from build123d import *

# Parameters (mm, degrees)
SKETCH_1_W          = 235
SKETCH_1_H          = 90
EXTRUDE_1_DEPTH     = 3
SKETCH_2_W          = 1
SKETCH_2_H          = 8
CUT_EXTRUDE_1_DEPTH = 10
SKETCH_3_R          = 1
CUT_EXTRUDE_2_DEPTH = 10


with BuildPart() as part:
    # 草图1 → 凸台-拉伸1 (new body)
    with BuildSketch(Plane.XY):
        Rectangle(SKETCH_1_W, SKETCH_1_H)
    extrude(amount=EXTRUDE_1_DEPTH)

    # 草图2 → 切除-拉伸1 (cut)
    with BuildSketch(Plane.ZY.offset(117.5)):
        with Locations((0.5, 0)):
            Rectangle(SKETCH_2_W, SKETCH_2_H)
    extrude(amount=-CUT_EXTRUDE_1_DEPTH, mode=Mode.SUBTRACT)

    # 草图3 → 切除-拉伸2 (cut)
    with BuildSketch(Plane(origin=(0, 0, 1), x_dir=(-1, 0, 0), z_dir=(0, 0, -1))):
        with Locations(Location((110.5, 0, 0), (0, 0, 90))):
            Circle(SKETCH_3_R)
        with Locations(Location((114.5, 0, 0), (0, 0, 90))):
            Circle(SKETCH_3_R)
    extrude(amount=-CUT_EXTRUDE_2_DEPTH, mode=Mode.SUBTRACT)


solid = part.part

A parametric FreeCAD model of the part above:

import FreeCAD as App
import Part
import Sketcher

V = App.Vector
Q = App.Units.Quantity


def add_polygon(sketch, points):
    """Adds a closed chain of lines whose ends are joined by coincident constraints."""
    first, n = sketch.GeometryCount, len(points)
    for a, b in zip(points, points[1:] + points[:1]):
        sketch.addGeometry(Part.LineSegment(App.Vector(*a, 0), App.Vector(*b, 0)), False)
    for i in range(n):
        sketch.addConstraint(Sketcher.Constraint("Coincident", first + i, 2, first + (i + 1) % n, 1))

doc = App.newDocument("Part")
body = doc.addObject("PartDesign::Body", "Body")

sketch1 = body.newObject("Sketcher::SketchObject", "Sketch")
sketch1.AttachmentSupport = (doc.getObject("XY_Plane"), [""])
sketch1.MapMode = "FlatFace"
add_polygon(sketch1, [(-118, 45), (-118, -45), (118, -45), (118, 45)])
sketch1.addConstraint([
    Sketcher.Constraint("Vertical", 0),
    Sketcher.Constraint("Horizontal", 1),
    Sketcher.Constraint("Vertical", 2),
    Sketcher.Constraint("Horizontal", 3),
    Sketcher.Constraint("Symmetric", 0, 2, 2, 2, -1, 1),
    Sketcher.Constraint("DistanceX", 1, 1, 1, 2, Q("235 mm")),
    Sketcher.Constraint("DistanceY", 0, 2, 0, 1, Q("90 mm")),
])
pad1 = body.newObject("PartDesign::Pad", "Pad")
pad1.Profile = sketch1
pad1.Length = 3

sketch2 = body.newObject("Sketcher::SketchObject", "Sketch001")
sketch2.AttachmentSupport = (doc.getObject("YZ_Plane"), [""])
sketch2.MapMode = "FlatFace"
sketch2.AttachmentOffset = App.Placement(V(0, 0, -117.5), App.Rotation())
add_polygon(sketch2, [(4, 0), (-4, 0), (-4, 1), (4, 1)])
sketch2.addConstraint([
    Sketcher.Constraint("Horizontal", 0),
    Sketcher.Constraint("Vertical", 1),
    Sketcher.Constraint("Horizontal", 2),
    Sketcher.Constraint("Vertical", 3),
    Sketcher.Constraint("Symmetric", 0, 2, 3, 2, -1, 1),
    Sketcher.Constraint("DistanceX", 0, 2, 0, 1, Q("8 mm")),
    Sketcher.Constraint("DistanceY", 1, 1, 1, 2, Q("1 mm")),
])
pocket1 = body.newObject("PartDesign::Pocket", "Pocket")
pocket1.Profile = sketch2
pocket1.Length = 10
pocket1.Reversed = True

sketch3 = body.newObject("Sketcher::SketchObject", "Sketch002")
sketch3.AttachmentSupport = (doc.getObject("XY_Plane"), [""])
sketch3.MapMode = "FlatFace"
sketch3.AttachmentOffset = App.Placement(V(0, 0, 1), App.Rotation())
sketch3.addGeometry([
    Part.Circle(V(-110.5, 0, 0), V(0, 0, 1), 1),
    Part.Circle(V(-114.5, 0, 0), V(0, 0, 1), 1),
], False)
sketch3.addConstraint([
    Sketcher.Constraint("Equal", 0, 1),
    Sketcher.Constraint("PointOnObject", 0, 3, -1),
    Sketcher.Constraint("PointOnObject", 1, 3, -1),
    Sketcher.Constraint("Diameter", 0, Q("2 mm")),
    Sketcher.Constraint("DistanceX", 1, 3, 0, 3, Q("4 mm")),
    Sketcher.Constraint("DistanceX", 0, 3, -1, 1, Q("110.5 mm")),
])
pocket2 = body.newObject("PartDesign::Pocket", "Pocket001")
pocket2.Profile = sketch3
pocket2.Length = 10
pocket2.Reversed = True

doc.recompute()
